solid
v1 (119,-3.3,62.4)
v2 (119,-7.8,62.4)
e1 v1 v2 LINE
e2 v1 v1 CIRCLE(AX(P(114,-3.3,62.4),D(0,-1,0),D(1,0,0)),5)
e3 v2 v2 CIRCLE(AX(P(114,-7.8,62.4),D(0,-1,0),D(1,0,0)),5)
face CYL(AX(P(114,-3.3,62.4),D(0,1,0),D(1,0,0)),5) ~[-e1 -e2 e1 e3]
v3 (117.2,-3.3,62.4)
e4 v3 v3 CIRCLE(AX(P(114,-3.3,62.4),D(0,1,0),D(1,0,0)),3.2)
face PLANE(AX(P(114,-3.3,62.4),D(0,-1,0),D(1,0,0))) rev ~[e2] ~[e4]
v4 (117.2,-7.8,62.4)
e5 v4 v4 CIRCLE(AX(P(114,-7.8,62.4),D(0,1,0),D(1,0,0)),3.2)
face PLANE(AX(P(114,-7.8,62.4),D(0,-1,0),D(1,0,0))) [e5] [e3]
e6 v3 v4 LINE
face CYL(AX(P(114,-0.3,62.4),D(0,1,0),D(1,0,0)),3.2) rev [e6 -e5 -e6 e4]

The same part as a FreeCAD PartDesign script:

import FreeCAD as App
import Part
import Sketcher

doc = App.newDocument("Part")
body = doc.addObject("PartDesign::Body", "Body")

# Sketch on XY plane
sketch1 = body.newObject("Sketcher::SketchObject", "Sketch")
sketch1.AttachmentSupport = (doc.getObject("XY_Plane"), [""])
sketch1.MapMode = "FlatFace"
sketch1.AttachmentOffset = App.Placement(App.Vector(0, 0, -3), App.Rotation())
sketch1.addGeometry(Part.Circle(App.Vector(0, 0, 0), App.Vector(0, 0, 1), 3.2), False)
sketch1.addConstraint(Sketcher.Constraint("Coincident", 0, 3, -1, 1))
sketch1.addConstraint(Sketcher.Constraint("Diameter", 0, 6.4))
pad1 = body.newObject("PartDesign::Pad", "Pad")
pad1.Profile = sketch1
pad1.Length = 16
body2 = doc.addObject("PartDesign::Body", "Body001")

# Sketch on XY plane
sketch2 = body2.newObject("Sketcher::SketchObject", "Sketch001")
sketch2.AttachmentSupport = (doc.getObject("XY_Plane001"), [""])
sketch2.MapMode = "FlatFace"
sketch2.addGeometry(Part.Circle(App.Vector(0, 0, 0), App.Vector(0, 0, 1), 5), False)
sketch2.addConstraint(Sketcher.Constraint("Coincident", 0, 3, -1, 1))
sketch2.addConstraint(Sketcher.Constraint("Diameter", 0, 10.0))
pad2 = body2.newObject("PartDesign::Pad", "Pad001")
pad2.Profile = sketch2
pad2.Length = 4.5
doc.recompute()

boolean = body2.newObject("PartDesign::Boolean", "Boolean")
boolean.Type = "Cut"
boolean.addObjects([body])
body3 = doc.addObject("PartDesign::Body", "Body002")
doc.recompute()

body2.Placement = App.Placement(App.Vector(114, -3.3, 62.4), App.Rotation(App.Vector(1, 0, 0), 90))
boolean2 = body3.newObject("PartDesign::Boolean", "Boolean001")
boolean2.Type = "Fuse"
boolean2.addObjects([body2])

doc.recompute()
